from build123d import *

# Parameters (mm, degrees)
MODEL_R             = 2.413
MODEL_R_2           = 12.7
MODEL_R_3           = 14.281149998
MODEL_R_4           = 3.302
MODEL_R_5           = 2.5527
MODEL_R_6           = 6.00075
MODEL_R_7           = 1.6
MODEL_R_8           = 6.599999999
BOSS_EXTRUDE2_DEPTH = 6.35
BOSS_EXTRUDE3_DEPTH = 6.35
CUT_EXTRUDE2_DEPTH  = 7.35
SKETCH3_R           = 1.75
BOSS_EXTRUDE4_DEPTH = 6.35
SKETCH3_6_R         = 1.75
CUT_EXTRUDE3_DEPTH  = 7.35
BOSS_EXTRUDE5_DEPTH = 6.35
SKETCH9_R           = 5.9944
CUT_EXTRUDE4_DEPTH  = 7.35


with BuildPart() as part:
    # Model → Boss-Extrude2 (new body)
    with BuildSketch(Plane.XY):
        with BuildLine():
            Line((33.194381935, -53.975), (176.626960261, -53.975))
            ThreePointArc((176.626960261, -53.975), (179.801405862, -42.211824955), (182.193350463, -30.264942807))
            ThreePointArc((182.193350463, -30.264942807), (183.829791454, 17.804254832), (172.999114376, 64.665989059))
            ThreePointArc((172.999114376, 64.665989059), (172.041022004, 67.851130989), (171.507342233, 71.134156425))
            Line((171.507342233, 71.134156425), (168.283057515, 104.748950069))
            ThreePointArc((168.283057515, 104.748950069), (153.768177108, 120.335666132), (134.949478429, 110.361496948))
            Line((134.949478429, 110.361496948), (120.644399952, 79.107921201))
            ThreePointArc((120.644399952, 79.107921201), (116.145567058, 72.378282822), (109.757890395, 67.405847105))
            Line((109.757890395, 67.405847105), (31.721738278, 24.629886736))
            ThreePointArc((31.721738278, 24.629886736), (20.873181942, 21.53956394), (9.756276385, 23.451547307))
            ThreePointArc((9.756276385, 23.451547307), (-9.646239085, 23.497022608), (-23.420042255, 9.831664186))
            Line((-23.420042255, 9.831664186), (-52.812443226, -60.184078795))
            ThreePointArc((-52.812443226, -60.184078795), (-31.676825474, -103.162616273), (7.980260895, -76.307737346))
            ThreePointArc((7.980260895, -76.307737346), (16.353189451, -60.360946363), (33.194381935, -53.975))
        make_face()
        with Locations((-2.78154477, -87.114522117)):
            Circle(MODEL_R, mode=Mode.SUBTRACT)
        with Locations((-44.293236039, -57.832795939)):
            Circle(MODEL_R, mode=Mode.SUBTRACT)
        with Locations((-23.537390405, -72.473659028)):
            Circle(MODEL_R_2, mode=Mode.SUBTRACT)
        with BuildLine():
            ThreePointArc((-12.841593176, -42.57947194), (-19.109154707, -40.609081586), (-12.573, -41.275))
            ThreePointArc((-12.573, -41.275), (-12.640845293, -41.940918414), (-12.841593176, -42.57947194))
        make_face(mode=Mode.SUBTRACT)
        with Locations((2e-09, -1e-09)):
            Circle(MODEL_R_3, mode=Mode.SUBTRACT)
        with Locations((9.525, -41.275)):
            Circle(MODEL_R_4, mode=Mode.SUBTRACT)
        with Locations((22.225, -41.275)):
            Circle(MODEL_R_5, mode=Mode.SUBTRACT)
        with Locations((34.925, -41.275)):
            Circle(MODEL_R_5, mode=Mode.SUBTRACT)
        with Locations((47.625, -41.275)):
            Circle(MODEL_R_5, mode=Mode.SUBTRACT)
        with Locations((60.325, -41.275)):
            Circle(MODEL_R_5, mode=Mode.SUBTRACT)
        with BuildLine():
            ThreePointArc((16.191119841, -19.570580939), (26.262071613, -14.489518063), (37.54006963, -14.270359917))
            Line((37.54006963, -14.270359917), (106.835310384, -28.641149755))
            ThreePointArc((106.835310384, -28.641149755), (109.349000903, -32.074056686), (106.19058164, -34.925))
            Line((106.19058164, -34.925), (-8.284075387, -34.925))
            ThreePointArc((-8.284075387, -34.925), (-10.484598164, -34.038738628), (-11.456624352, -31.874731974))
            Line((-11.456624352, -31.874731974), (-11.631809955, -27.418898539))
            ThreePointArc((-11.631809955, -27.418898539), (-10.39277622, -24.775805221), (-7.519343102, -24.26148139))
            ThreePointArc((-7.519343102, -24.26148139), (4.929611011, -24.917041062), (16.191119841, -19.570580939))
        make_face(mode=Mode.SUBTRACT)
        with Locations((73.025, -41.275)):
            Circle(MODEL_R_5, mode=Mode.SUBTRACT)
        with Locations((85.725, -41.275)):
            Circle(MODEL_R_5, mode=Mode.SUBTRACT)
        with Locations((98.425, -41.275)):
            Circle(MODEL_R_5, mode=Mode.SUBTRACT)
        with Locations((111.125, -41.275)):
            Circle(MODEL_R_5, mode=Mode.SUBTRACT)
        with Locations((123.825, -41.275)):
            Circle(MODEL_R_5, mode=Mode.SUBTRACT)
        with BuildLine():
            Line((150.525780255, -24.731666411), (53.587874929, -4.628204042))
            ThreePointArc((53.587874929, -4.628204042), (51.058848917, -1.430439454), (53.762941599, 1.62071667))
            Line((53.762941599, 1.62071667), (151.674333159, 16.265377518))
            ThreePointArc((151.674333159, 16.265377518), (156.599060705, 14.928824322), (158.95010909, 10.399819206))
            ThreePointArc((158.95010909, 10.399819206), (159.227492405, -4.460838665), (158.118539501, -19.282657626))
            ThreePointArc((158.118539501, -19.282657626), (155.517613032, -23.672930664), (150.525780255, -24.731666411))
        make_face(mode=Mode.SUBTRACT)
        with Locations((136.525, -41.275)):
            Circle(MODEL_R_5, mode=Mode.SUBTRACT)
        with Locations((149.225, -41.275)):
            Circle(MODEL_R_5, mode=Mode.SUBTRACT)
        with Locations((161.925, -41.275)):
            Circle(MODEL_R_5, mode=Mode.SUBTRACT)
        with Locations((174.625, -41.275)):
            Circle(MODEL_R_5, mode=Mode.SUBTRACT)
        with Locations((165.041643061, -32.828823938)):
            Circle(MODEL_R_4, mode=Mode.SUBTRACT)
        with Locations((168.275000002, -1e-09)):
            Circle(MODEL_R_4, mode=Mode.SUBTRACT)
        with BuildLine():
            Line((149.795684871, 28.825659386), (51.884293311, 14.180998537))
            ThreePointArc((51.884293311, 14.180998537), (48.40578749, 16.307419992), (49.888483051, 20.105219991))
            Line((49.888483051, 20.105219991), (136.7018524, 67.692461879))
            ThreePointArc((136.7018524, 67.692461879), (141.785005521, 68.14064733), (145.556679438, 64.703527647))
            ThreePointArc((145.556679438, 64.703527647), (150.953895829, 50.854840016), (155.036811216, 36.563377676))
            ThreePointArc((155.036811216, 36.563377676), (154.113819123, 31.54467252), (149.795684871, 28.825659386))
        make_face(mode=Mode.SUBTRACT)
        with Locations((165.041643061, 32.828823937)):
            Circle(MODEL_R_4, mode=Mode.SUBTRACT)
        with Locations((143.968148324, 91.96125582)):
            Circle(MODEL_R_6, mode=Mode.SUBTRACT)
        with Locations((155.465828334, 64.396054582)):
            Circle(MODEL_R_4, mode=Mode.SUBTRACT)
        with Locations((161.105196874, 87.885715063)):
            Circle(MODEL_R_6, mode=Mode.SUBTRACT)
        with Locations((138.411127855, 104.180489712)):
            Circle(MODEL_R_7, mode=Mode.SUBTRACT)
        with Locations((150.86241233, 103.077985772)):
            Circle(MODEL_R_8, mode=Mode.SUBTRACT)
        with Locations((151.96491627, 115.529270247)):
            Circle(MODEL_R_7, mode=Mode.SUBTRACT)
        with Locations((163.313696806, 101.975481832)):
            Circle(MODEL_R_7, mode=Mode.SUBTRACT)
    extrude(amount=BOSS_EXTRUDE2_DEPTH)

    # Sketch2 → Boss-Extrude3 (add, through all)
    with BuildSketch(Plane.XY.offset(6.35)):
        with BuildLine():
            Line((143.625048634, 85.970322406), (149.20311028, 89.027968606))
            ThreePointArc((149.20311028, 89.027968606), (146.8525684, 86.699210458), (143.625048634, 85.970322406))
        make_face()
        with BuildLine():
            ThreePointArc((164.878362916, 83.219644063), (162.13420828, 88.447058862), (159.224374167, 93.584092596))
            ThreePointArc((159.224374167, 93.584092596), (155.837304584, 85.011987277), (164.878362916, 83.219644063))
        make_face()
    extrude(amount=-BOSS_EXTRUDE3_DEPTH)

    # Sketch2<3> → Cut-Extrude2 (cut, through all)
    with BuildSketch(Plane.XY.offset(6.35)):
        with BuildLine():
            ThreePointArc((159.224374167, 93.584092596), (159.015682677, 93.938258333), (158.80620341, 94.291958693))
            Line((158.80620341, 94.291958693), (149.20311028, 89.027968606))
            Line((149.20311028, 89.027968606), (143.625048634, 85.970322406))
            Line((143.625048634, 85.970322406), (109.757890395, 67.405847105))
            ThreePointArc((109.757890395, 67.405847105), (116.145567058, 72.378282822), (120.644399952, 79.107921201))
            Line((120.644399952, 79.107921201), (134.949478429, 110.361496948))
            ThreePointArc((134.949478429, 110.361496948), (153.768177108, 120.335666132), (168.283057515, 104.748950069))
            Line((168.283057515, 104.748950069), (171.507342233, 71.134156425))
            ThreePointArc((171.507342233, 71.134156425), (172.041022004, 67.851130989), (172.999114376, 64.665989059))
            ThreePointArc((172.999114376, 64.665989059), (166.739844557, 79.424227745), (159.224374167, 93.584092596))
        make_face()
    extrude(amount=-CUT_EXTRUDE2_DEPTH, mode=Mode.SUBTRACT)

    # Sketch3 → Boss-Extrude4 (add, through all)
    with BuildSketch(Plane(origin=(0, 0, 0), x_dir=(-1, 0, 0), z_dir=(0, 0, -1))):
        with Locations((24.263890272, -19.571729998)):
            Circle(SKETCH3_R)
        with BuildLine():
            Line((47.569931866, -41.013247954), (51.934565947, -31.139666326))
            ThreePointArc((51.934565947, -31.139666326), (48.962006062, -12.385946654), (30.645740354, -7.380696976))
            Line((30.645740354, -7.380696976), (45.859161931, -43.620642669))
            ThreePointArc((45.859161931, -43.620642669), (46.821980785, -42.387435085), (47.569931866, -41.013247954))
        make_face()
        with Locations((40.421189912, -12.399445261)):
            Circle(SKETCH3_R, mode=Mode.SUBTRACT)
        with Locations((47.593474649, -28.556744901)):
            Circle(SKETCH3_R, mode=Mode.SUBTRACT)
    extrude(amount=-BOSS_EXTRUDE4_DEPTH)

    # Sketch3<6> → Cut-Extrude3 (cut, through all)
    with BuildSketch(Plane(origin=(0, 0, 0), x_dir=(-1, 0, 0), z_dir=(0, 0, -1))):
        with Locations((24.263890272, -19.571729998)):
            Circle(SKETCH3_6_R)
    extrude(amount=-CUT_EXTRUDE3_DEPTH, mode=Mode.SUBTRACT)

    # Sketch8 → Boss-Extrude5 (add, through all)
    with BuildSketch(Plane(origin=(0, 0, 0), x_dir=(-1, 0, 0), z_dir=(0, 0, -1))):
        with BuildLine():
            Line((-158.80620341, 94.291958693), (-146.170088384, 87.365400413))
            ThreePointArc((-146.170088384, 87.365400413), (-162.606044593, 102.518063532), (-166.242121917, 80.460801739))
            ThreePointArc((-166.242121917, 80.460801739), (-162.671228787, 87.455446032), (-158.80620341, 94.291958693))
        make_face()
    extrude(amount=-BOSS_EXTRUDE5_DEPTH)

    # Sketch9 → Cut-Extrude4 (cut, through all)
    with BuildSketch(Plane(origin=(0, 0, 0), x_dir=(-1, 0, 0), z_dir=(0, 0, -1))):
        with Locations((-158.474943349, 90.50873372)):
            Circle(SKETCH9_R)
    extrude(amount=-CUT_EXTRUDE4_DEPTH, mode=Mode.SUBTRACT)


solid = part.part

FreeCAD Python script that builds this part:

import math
import FreeCAD as App
import Part
import Sketcher

V = App.Vector
Q = App.Units.Quantity

doc = App.newDocument("Part")
body = doc.addObject("PartDesign::Body", "Body")

# Sketch on XY plane
sketch1 = body.newObject("Sketcher::SketchObject", "Sketch")
sketch1.AttachmentSupport = (doc.getObject("XY_Plane"), [""])
sketch1.MapMode = "FlatFace"
sketch1.addGeometry(Part.LineSegment(V(33.2, -54, 0), V(176.6, -54, 0)), False)
sketch1.addGeometry(Part.ArcOfCircle(Part.Circle(V(0, 0, 0), V(0, 0, 1), 184.7), math.radians(-16.99), math.radians(-9.43)), False)
sketch1.addGeometry(Part.ArcOfCircle(Part.Circle(V(0, 0, 0), V(0, 0, 1), 184.7), math.radians(-9), math.radians(20)), False)
sketch1.addGeometry(Part.ArcOfCircle(Part.Circle(V(196.8, 73.6, 0), V(0, 0, 1), 25.4), math.radians(-174.52), math.radians(-159.5)), False)
sketch1.addGeometry(Part.LineSegment(V(171.5, 71.1, 0), V(168.3, 104.7, 0)), False)
sketch1.addGeometry(Part.ArcOfCircle(Part.Circle(V(150.9, 103.1, 0), V(0, 0, 1), 17.5), math.radians(5), math.radians(155)), False)
sketch1.addGeometry(Part.LineSegment(V(134.9, 110.4, 0), V(120.6, 79.1, 0)), False)
sketch1.addGeometry(Part.ArcOfCircle(Part.Circle(V(97.5, 89.7, 0), V(0, 0, 1), 25.4), math.radians(-61), math.radians(-25)), False)
sketch1.addGeometry(Part.LineSegment(V(109.8, 67.4, 0), V(31.7, 24.6, 0)), False)
sketch1.addGeometry(Part.ArcOfCircle(Part.Circle(V(19.5, 46.9, 0), V(0, 0, 1), 25.4), math.radians(-113), math.radians(-61)), False)
sketch1.addGeometry(Part.ArcOfCircle(Part.Circle(V(0, 0, 0), V(0, 0, 1), 25.4), math.radians(67), math.radians(157)), False)
sketch1.addGeometry(Part.LineSegment(V(-23.4, 9.8, 0), V(-52.8, -60.2, 0)), False)
sketch1.addGeometry(Part.ArcOfCircle(Part.Circle(V(-23.5, -72.5, 0), V(0, 0, 1), 31.8), math.radians(157), math.radians(353)), False)
sketch1.addGeometry(Part.ArcOfCircle(Part.Circle(V(33.2, -79.4, 0), V(0, 0, 1), 25.4), math.radians(90), math.radians(173)), False)
sketch1.addGeometry(Part.Circle(V(-23.5, -72.5, 0), V(0, 0, 1), 12.7), False)
sketch1.addGeometry(Part.Circle(V(-2.8, -87.1, 0), V(0, 0, 1), 2.4), False)
sketch1.addGeometry(Part.Circle(V(-44.3, -57.8, 0), V(0, 0, 1), 2.4), False)
sketch1.addGeometry(Part.ArcOfCircle(Part.Circle(V(-15.9, -41.3, 0), V(0, 0, 1), 3.3), math.radians(-23), math.radians(0)), False)
sketch1.addGeometry(Part.ArcOfCircle(Part.Circle(V(-15.9, -41.3, 0), V(0, 0, 1), 3.3), math.radians(0), math.radians(337)), False)
sketch1.addGeometry(Part.Circle(V(9.5, -41.3, 0), V(0, 0, 1), 3.3), False)
sketch1.addGeometry(Part.Circle(V(22.2, -41.3, 0), V(0, 0, 1), 2.6), False)
sketch1.addGeometry(Part.Circle(V(34.9, -41.3, 0), V(0, 0, 1), 2.6), False)
sketch1.addGeometry(Part.Circle(V(47.6, -41.3, 0), V(0, 0, 1), 2.6), False)
sketch1.addGeometry(Part.Circle(V(60.3, -41.3, 0), V(0, 0, 1), 2.6), False)
sketch1.addGeometry(Part.Circle(V(0, 0, 0), V(0, 0, 1), 14.3), False)
sketch1.addGeometry(Part.ArcOfCircle(Part.Circle(V(0, 0, 0), V(0, 0, 1), 25.4), math.radians(-107), math.radians(-50)), False)
sketch1.addGeometry(Part.ArcOfCircle(Part.Circle(V(32.4, -39.1, 0), V(0, 0, 1), 25.4), math.radians(78), math.radians(130)), False)
sketch1.addGeometry(Part.LineSegment(V(37.5, -14.3, 0), V(106.8, -28.6, 0)), False)
sketch1.addGeometry(Part.ArcOfCircle(Part.Circle(V(106.2, -31.8, 0), V(0, 0, 1), 3.2), math.radians(-90), math.radians(78)), False)
sketch1.addGeometry(Part.LineSegment(V(106.2, -34.9, 0), V(-8.3, -34.9, 0)), False)
sketch1.addGeometry(Part.ArcOfCircle(Part.Circle(V(-8.3, -31.8, 0), V(0, 0, 1), 3.2), math.radians(-178), math.radians(-90)), False)
sketch1.addGeometry(Part.LineSegment(V(-11.5, -31.9, 0), V(-11.6, -27.4, 0)), False)
sketch1.addGeometry(Part.ArcOfCircle(Part.Circle(V(-8.5, -27.3, 0), V(0, 0, 1), 3.2), math.radians(73), math.radians(182)), False)
sketch1.addGeometry(Part.Circle(V(73, -41.3, 0), V(0, 0, 1), 2.6), False)
sketch1.addGeometry(Part.Circle(V(85.7, -41.3, 0), V(0, 0, 1), 2.6), False)
sketch1.addGeometry(Part.Circle(V(98.4, -41.3, 0), V(0, 0, 1), 2.6), False)
sketch1.addGeometry(Part.Circle(V(111.1, -41.3, 0), V(0, 0, 1), 2.6), False)
sketch1.addGeometry(Part.Circle(V(123.8, -41.3, 0), V(0, 0, 1), 2.6), False)
sketch1.addGeometry(Part.Circle(V(136.5, -41.3, 0), V(0, 0, 1), 2.6), False)
sketch1.addGeometry(Part.Circle(V(149.2, -41.3, 0), V(0, 0, 1), 2.6), False)
sketch1.addGeometry(Part.Circle(V(161.9, -41.3, 0), V(0, 0, 1), 2.6), False)
sketch1.addGeometry(Part.Circle(V(174.6, -41.3, 0), V(0, 0, 1), 2.6), False)
sketch1.addGeometry(Part.ArcOfCircle(Part.Circle(V(151.8, -18.5, 0), V(0, 0, 1), 6.3), math.radians(-102), math.radians(-7)), False)
sketch1.addGeometry(Part.LineSegment(V(150.5, -24.7, 0), V(53.6, -4.6, 0)), False)
sketch1.addGeometry(Part.ArcOfCircle(Part.Circle(V(54.2, -1.5, 0), V(0, 0, 1), 3.2), math.radians(99), math.radians(258)), False)
sketch1.addGeometry(Part.LineSegment(V(53.8, 1.6, 0), V(151.7, 16.3, 0)), False)
sketch1.addGeometry(Part.ArcOfCircle(Part.Circle(V(152.6, 10, 0), V(0, 0, 1), 6.3), math.radians(4), math.radians(99)), False)
sketch1.addGeometry(Part.ArcOfCircle(Part.Circle(V(0, 0, 0), V(0, 0, 1), 159.3), math.radians(-6.95), math.radians(3.74)), False)
sketch1.addGeometry(Part.Circle(V(165, -32.8, 0), V(0, 0, 1), 3.3), False)
sketch1.addGeometry(Part.Circle(V(168.3, 0, 0), V(0, 0, 1), 3.3), False)
sketch1.addGeometry(Part.ArcOfCircle(Part.Circle(V(148.9, 35.1, 0), V(0, 0, 1), 6.3), math.radians(-81), math.radians(13)), False)
sketch1.addGeometry(Part.LineSegment(V(149.8, 28.8, 0), V(51.9, 14.2, 0)), False)
sketch1.addGeometry(Part.ArcOfCircle(Part.Circle(V(51.4, 17.3, 0), V(0, 0, 1), 3.2), math.radians(119), math.radians(279)), False)
sketch1.addGeometry(Part.LineSegment(V(49.9, 20.1, 0), V(136.7, 67.7, 0)), False)
sketch1.addGeometry(Part.ArcOfCircle(Part.Circle(V(139.8, 62.1, 0), V(0, 0, 1), 6.3), math.radians(24), math.radians(119)), False)
sketch1.addGeometry(Part.ArcOfCircle(Part.Circle(V(0, 0, 0), V(0, 0, 1), 159.3), math.radians(13.27), math.radians(23.97)), False)
sketch1.addGeometry(Part.Circle(V(165, 32.8, 0), V(0, 0, 1), 3.3), False)
sketch1.addGeometry(Part.Circle(V(155.5, 64.4, 0), V(0, 0, 1), 3.3), False)
sketch1.addGeometry(Part.Circle(V(161.1, 87.9, 0), V(0, 0, 1), 6), False)
sketch1.addGeometry(Part.Circle(V(144, 92, 0), V(0, 0, 1), 6), False)
sketch1.addGeometry(Part.Circle(V(138.4, 104.2, 0), V(0, 0, 1), 1.6), False)
sketch1.addGeometry(Part.Circle(V(150.9, 103.1, 0), V(0, 0, 1), 6.6), False)
sketch1.addGeometry(Part.Circle(V(163.3, 102, 0), V(0, 0, 1), 1.6), False)
sketch1.addGeometry(Part.Circle(V(152, 115.5, 0), V(0, 0, 1), 1.6), False)
sketch1.addConstraint(Sketcher.Constraint("Coincident", 0, 2, 1, 1))
sketch1.addConstraint(Sketcher.Constraint("Tangent", 1, 2, 2, 1))
sketch1.addConstraint(Sketcher.Constraint("Tangent", 2, 2, 3, 2))
sketch1.addConstraint(Sketcher.Constraint("Tangent", 3, 1, 4, 1))
sketch1.addConstraint(Sketcher.Constraint("Tangent", 4, 2, 5, 1))
sketch1.addConstraint(Sketcher.Constraint("Tangent", 5, 2, 6, 1))
sketch1.addConstraint(Sketcher.Constraint("Tangent", 6, 2, 7, 2))
sketch1.addConstraint(Sketcher.Constraint("Tangent", 7, 1, 8, 1))
sketch1.addConstraint(Sketcher.Constraint("Tangent", 8, 2, 9, 2))
sketch1.addConstraint(Sketcher.Constraint("Tangent", 9, 1, 10, 1))
sketch1.addConstraint(Sketcher.Constraint("Tangent", 10, 2, 11, 1))
sketch1.addConstraint(Sketcher.Constraint("Tangent", 11, 2, 12, 1))
sketch1.addConstraint(Sketcher.Constraint("Tangent", 12, 2, 13, 2))
sketch1.addConstraint(Sketcher.Constraint("Tangent", 13, 1, 0, 1))
sketch1.addConstraint(Sketcher.Constraint("Tangent", 17, 1, 18, 2))
sketch1.addConstraint(Sketcher.Constraint("Coincident", 18, 1, 17, 2))
sketch1.addConstraint(Sketcher.Constraint("Tangent", 25, 2, 26, 2))
sketch1.addConstraint(Sketcher.Constraint("Tangent", 26, 1, 27, 1))
sketch1.addConstraint(Sketcher.Constraint("Tangent", 27, 2, 28, 2))
sketch1.addConstraint(Sketcher.Constraint("Tangent", 28, 1, 29, 1))
sketch1.addConstraint(Sketcher.Constraint("Tangent", 29, 2, 30, 2))
sketch1.addConstraint(Sketcher.Constraint("Tangent", 30, 1, 31, 1))
sketch1.addConstraint(Sketcher.Constraint("Tangent", 31, 2, 32, 2))
sketch1.addConstraint(Sketcher.Constraint("Tangent", 32, 1, 25, 1))
sketch1.addConstraint(Sketcher.Constraint("Tangent", 42, 1, 43, 1))
sketch1.addConstraint(Sketcher.Constraint("Tangent", 43, 2, 44, 2))
sketch1.addConstraint(Sketcher.Constraint("Tangent", 44, 1, 45, 1))
sketch1.addConstraint(Sketcher.Constraint("Tangent", 45, 2, 46, 2))
sketch1.addConstraint(Sketcher.Constraint("Tangent", 46, 1, 47, 2))
sketch1.addConstraint(Sketcher.Constraint("Tangent", 47, 1, 42, 2))
sketch1.addConstraint(Sketcher.Constraint("Tangent", 50, 1, 51, 1))
sketch1.addConstraint(Sketcher.Constraint("Tangent", 51, 2, 52, 2))
sketch1.addConstraint(Sketcher.Constraint("Tangent", 52, 1, 53, 1))
sketch1.addConstraint(Sketcher.Constraint("Tangent", 53, 2, 54, 2))
sketch1.addConstraint(Sketcher.Constraint("Tangent", 54, 1, 55, 2))
sketch1.addConstraint(Sketcher.Constraint("Tangent", 55, 1, 50, 2))
sketch1.addConstraint(Sketcher.Constraint("Horizontal", 0))
sketch1.addConstraint(Sketcher.Constraint("Horizontal", 29))
sketch1.addConstraint(Sketcher.Constraint("Coincident", 1, 3, -1, 1))
sketch1.addConstraint(Sketcher.Constraint("Coincident", 10, 3, -1, 1))
sketch1.addConstraint(Sketcher.Constraint("Coincident", 24, 3, -1, 1))
sketch1.addConstraint(Sketcher.Constraint("Coincident", 25, 3, -1, 1))
sketch1.addConstraint(Sketcher.Constraint("Coincident", 47, 3, -1, 1))
sketch1.addConstraint(Sketcher.Constraint("Coincident", 55, 3, -1, 1))
sketch1.addConstraint(Sketcher.Constraint("Coincident", 14, 3, 12, 3))
sketch1.addConstraint(Sketcher.Constraint("Coincident", 61, 3, 5, 3))
sketch1.addConstraint(Sketcher.Constraint("Equal", 1, 2))
sketch1.addConstraint(Sketcher.Constraint("Equal", 3, 7))
sketch1.addConstraint(Sketcher.Constraint("Equal", 7, 9))
sketch1.addConstraint(Sketcher.Constraint("Equal", 9, 10))
sketch1.addConstraint(Sketcher.Constraint("Equal", 10, 13))
sketch1.addConstraint(Sketcher.Constraint("Equal", 15, 16))
sketch1.addConstraint(Sketcher.Constraint("Equal", 18, 19))
sketch1.addConstraint(Sketcher.Constraint("Equal", 20, 21))
sketch1.addConstraint(Sketcher.Constraint("Equal", 21, 22))
sketch1.addConstraint(Sketcher.Constraint("Equal", 22, 23))
sketch1.addConstraint(Sketcher.Constraint("Equal", 13, 25))
sketch1.addConstraint(Sketcher.Constraint("Equal", 25, 26))
sketch1.addConstraint(Sketcher.Constraint("Equal", 28, 30))
sketch1.addConstraint(Sketcher.Constraint("Equal", 30, 32))
sketch1.addConstraint(Sketcher.Constraint("Equal", 23, 33))
sketch1.addConstraint(Sketcher.Constraint("Equal", 33, 34))
sketch1.addConstraint(Sketcher.Constraint("Equal", 34, 35))
sketch1.addConstraint(Sketcher.Constraint("Equal", 35, 36))
sketch1.addConstraint(Sketcher.Constraint("Equal", 36, 37))
sketch1.addConstraint(Sketcher.Constraint("Equal", 37, 38))
sketch1.addConstraint(Sketcher.Constraint("Equal", 38, 39))
sketch1.addConstraint(Sketcher.Constraint("Equal", 39, 40))
sketch1.addConstraint(Sketcher.Constraint("Equal", 40, 41))
sketch1.addConstraint(Sketcher.Constraint("Equal", 32, 44))
sketch1.addConstraint(Sketcher.Constraint("Equal", 42, 46))
sketch1.addConstraint(Sketcher.Constraint("Equal", 19, 48))
sketch1.addConstraint(Sketcher.Constraint("Equal", 48, 49))
sketch1.addConstraint(Sketcher.Constraint("Equal", 46, 50))
sketch1.addConstraint(Sketcher.Constraint("Equal", 44, 52))
sketch1.addConstraint(Sketcher.Constraint("Equal", 50, 54))
sketch1.addConstraint(Sketcher.Constraint("Equal", 47, 55))
sketch1.addConstraint(Sketcher.Constraint("Equal", 49, 56))
sketch1.addConstraint(Sketcher.Constraint("Equal", 56, 57))
sketch1.addConstraint(Sketcher.Constraint("Equal", 58, 59))
sketch1.addConstraint(Sketcher.Constraint("Equal", 60, 62))
sketch1.addConstraint(Sketcher.Constraint("Equal", 62, 63))
sketch1.addConstraint(Sketcher.Constraint("Symmetric", 48, 3, 56, 3, -1))
sketch1.addConstraint(Sketcher.Constraint("PointOnObject", 49, 3, -1))
sketch1.addConstraint(Sketcher.Constraint("Parallel", 27, 43))
sketch1.addConstraint(Sketcher.Constraint("Parallel", 45, 51))
sketch1.addConstraint(Sketcher.Constraint("Parallel", 8, 53))
sketch1.addConstraint(Sketcher.Constraint("Horizontal", 18, 3, 19, 3))
sketch1.addConstraint(Sketcher.Constraint("Horizontal", 19, 3, 20, 3))
sketch1.addConstraint(Sketcher.Constraint("Horizontal", 20, 3, 21, 3))
sketch1.addConstraint(Sketcher.Constraint("Horizontal", 21, 3, 22, 3))
sketch1.addConstraint(Sketcher.Constraint("Horizontal", 22, 3, 23, 3))
sketch1.addConstraint(Sketcher.Constraint("Horizontal", 23, 3, 33, 3))
sketch1.addConstraint(Sketcher.Constraint("Horizontal", 33, 3, 34, 3))
sketch1.addConstraint(Sketcher.Constraint("Horizontal", 34, 3, 35, 3))
sketch1.addConstraint(Sketcher.Constraint("Horizontal", 35, 3, 36, 3))
sketch1.addConstraint(Sketcher.Constraint("Horizontal", 36, 3, 37, 3))
sketch1.addConstraint(Sketcher.Constraint("Horizontal", 37, 3, 38, 3))
sketch1.addConstraint(Sketcher.Constraint("Horizontal", 38, 3, 39, 3))
sketch1.addConstraint(Sketcher.Constraint("Horizontal", 39, 3, 40, 3))
sketch1.addConstraint(Sketcher.Constraint("Horizontal", 40, 3, 41, 3))
sketch1.addConstraint(Sketcher.Constraint("Horizontal", 41, 3, 18, 1))
sketch1.addConstraint(Sketcher.Constraint("Equal", 43, 45))
sketch1.addConstraint(Sketcher.Constraint("Equal", 45, 51))
sketch1.addConstraint(Sketcher.Constraint("Equal", 51, 53))
sketch1.addConstraint(Sketcher.Constraint("Diameter", 14, Q("1 in")))
sketch1.addConstraint(Sketcher.Constraint("Radius", 3, Q("1 in")))
sketch1.addConstraint(Sketcher.Constraint("Diameter", 15, Q("0.19 in")))
sketch1.addConstraint(Sketcher.Constraint("Diameter", 19, Q("0.26 in")))
sketch1.addConstraint(Sketcher.Constraint("Radius", 12, Q("1.25 in")))
sketch1.addConstraint(Sketcher.Constraint("Radius", 42, Q("0.25 in")))
sketch1.addConstraint(Sketcher.Constraint("Diameter", 20, Q("0.201 in")))
sketch1.addConstraint(Sketcher.Constraint("Radius", 5, Q("0.689 in")))
sketch1.addConstraint(Sketcher.Constraint("Radius", 28, Q("0.125 in")))
sketch1.addConstraint(Sketcher.Constraint("Diameter", 24, Q("1.1245 in")))
sketch1.addConstraint(Sketcher.Constraint("Diameter", 58, Q("0.4725 in")))
sketch1.addConstraint(Sketcher.Constraint("Diameter", 60, Q("3.2 mm")))
sketch1.addConstraint(Sketcher.Constraint("Diameter", 61, Q("13.2 mm")))
sketch1.addConstraint(Sketcher.Constraint("DistanceY", 28, 3, -1, 1, Q("1.25 in")))
sketch1.addConstraint(Sketcher.Constraint("DistanceY", 13, 3, -1, 1, Q("3.125 in")))
sketch1.addConstraint(Sketcher.Constraint("DistanceX", 17, 3, -1, 1, Q("0.625 in")))
sketch1.addConstraint(Sketcher.Constraint("DistanceY", 17, 3, -1, 1, Q("1.625 in")))
sketch1.addConstraint(Sketcher.Constraint("DistanceX", -1, 1, 19, 3, Q("0.375 in")))
sketch1.addConstraint(Sketcher.Constraint("DistanceX", -1, 1, 20, 3, Q("0.875 in")))
sketch1.addConstraint(Sketcher.Constraint("DistanceX", -1, 1, 21, 3, Q("1.375 in")))
sketch1.addConstraint(Sketcher.Constraint("DistanceX", -1, 1, 22, 3, Q("1.875 in")))
sketch1.addConstraint(Sketcher.Constraint("DistanceX", -1, 1, 23, 3, Q("2.375 in")))
sketch1.addConstraint(Sketcher.Constraint("DistanceX", -1, 1, 33, 3, Q("2.875 in")))
sketch1.addConstraint(Sketcher.Constraint("DistanceX", -1, 1, 34, 3, Q("3.375 in")))
sketch1.addConstraint(Sketcher.Constraint("DistanceX", -1, 1, 35, 3, Q("3.875 in")))
sketch1.addConstraint(Sketcher.Constraint("DistanceX", -1, 1, 36, 3, Q("4.375 in")))
sketch1.addConstraint(Sketcher.Constraint("DistanceX", -1, 1, 37, 3, Q("4.875 in")))
sketch1.addConstraint(Sketcher.Constraint("DistanceX", -1, 1, 38, 3, Q("5.375 in")))
sketch1.addConstraint(Sketcher.Constraint("DistanceX", -1, 1, 39, 3, Q("5.875 in")))
sketch1.addConstraint(Sketcher.Constraint("DistanceX", -1, 1, 40, 3, Q("6.375 in")))
sketch1.addConstraint(Sketcher.Constraint("DistanceX", -1, 1, 41, 3, Q("6.875 in")))
sketch1.addConstraint(Sketcher.Constraint("DistanceX", -1, 1, 49, 3, Q("6.625 in")))
sketch1.addConstraint(Sketcher.Constraint("DistanceX", -1, 1, 7, 3, Q("3.8405002 in")))
sketch1.addConstraint(Sketcher.Constraint("Radius", 1, Q("184.689967 mm")))
sketch1.addConstraint(Sketcher.Constraint("Radius", 47, Q("159.289966 mm")))
sketch1.addConstraint(Sketcher.Constraint("DistanceX", 0, 1, 0, 2, Q("143.432578 mm")))
sketch1.addConstraint(Sketcher.Constraint("DistanceY", -1, 1, 50, 3, Q("35.1058 mm")))
sketch1.addConstraint(Sketcher.Constraint("DistanceX", -1, 1, 6, 2, Q("120.6444 mm")))
sketch1.addConstraint(Sketcher.Constraint("DistanceY", 31, 2, -1, 1, Q("27.418899 mm")))
sketch1.addConstraint(Sketcher.Constraint("DistanceY", -1, 1, 51, 2, Q("14.180999 mm")))
sketch1.addConstraint(Sketcher.Constraint("Distance", 6, Q("34.371809 mm")))
sketch1.addConstraint(Sketcher.Constraint("Distance", 43, Q("99.000539 mm")))
sketch1.addConstraint(Sketcher.Constraint("DistanceX", 29, 2, 29, 1, Q("114.474657 mm")))
sketch1.addConstraint(Sketcher.Constraint("DistanceY", -1, 1, 3, 3, Q("73.559359 mm")))
sketch1.addConstraint(Sketcher.Constraint("DistanceX", 12, 3, -1, 1, Q("23.53739 mm")))
sketch1.addConstraint(Sketcher.Constraint("DistanceX", -1, 1, 26, 3, Q("32.38224 mm")))
sketch1.addConstraint(Sketcher.Constraint("DistanceX", -1, 1, 28, 3, Q("106.190582 mm")))
sketch1.addConstraint(Sketcher.Constraint("DistanceX", -1, 1, 57, 3, Q("155.465828 mm")))
sketch1.addConstraint(Sketcher.Constraint("DistanceX", -1, 1, 59, 3, Q("143.968148 mm")))
sketch1.addConstraint(Sketcher.Constraint("DistanceY", -1, 1, 60, 3, Q("104.18049 mm")))
sketch1.addConstraint(Sketcher.Constraint("DistanceY", -1, 1, 62, 3, Q("101.975482 mm")))
sketch1.addConstraint(Sketcher.Constraint("DistanceY", -1, 1, 63, 3, Q("115.52927 mm")))
sketch1.addConstraint(Sketcher.Constraint("DistanceX", -1, 1, 1, 2, Q("182.19335 mm")))
sketch1.addConstraint(Sketcher.Constraint("DistanceY", -1, 1, 4, 2, Q("104.74895 mm")))
sketch1.addConstraint(Sketcher.Constraint("DistanceY", 17, 1, -1, 1, Q("42.579472 mm")))
sketch1.addConstraint(Sketcher.Constraint("DistanceX", 15, 3, -1, 1, Q("2.781545 mm")))
sketch1.addConstraint(Sketcher.Constraint("DistanceY", 15, 3, -1, 1, Q("87.114522 mm")))
sketch1.addConstraint(Sketcher.Constraint("DistanceX", 16, 3, -1, 1, Q("44.293236 mm")))
sketch1.addConstraint(Sketcher.Constraint("DistanceY", 16, 3, -1, 1, Q("57.832796 mm")))
sketch1.addConstraint(Sketcher.Constraint("DistanceX", -1, 1, 48, 3, Q("165.041643 mm")))
sketch1.addConstraint(Sketcher.Constraint("DistanceY", 48, 3, -1, 1, Q("32.828824 mm")))
sketch1.addConstraint(Sketcher.Constraint("DistanceY", -1, 1, 57, 3, Q("64.396055 mm")))
sketch1.addConstraint(Sketcher.Constraint("DistanceX", -1, 1, 58, 3, Q("161.105197 mm")))
sketch1.addConstraint(Sketcher.Constraint("DistanceY", -1, 1, 58, 3, Q("87.885715 mm")))
sketch1.addConstraint(Sketcher.Constraint("DistanceY", -1, 1, 59, 3, Q("91.961256 mm")))
sketch1.addConstraint(Sketcher.Constraint("DistanceX", -1, 1, 60, 3, Q("138.411128 mm")))
sketch1.addConstraint(Sketcher.Constraint("DistanceX", -1, 1, 62, 3, Q("163.313697 mm")))
sketch1.addConstraint(Sketcher.Constraint("DistanceX", -1, 1, 63, 3, Q("151.964916 mm")))
pad1 = body.newObject("PartDesign::Pad", "Pad")
pad1.Profile = sketch1
pad1.Length = Q("0.25 in")

# Sketch on XY plane
sketch2 = body.newObject("Sketcher::SketchObject", "Sketch001")
sketch2.AttachmentSupport = (doc.getObject("XY_Plane"), [""])
sketch2.MapMode = "FlatFace"
sketch2.AttachmentOffset = App.Placement(V(0, 0, 0.25 * 25.4), App.Rotation())
sketch2.addGeometry(Part.LineSegment(V(149, 89, 0), V(144, 86, 0)), False)
sketch2.addGeometry(Part.ArcOfCircle(Part.Circle(V(144, 92, 0), V(0, 0, 1), 6), math.radians(-93), math.radians(-29)), False)
sketch2.addGeometry(Part.ArcOfCircle(Part.Circle(V(0, 0, 0), V(0, 0, 1), 185), math.radians(26.78), math.radians(30.44)), False)
sketch2.addGeometry(Part.ArcOfCircle(Part.Circle(V(161, 88, 0), V(0, 0, 1), 6), math.radians(108), math.radians(309)), False)
sketch2.addConstraint(Sketcher.Constraint("Coincident", 0, 1, 1, 2))
sketch2.addConstraint(Sketcher.Constraint("Coincident", 1, 1, 0, 2))
sketch2.addConstraint(Sketcher.Constraint("Coincident", 2, 1, 3, 2))
sketch2.addConstraint(Sketcher.Constraint("Coincident", 3, 1, 2, 2))
sketch2.addConstraint(Sketcher.Constraint("Coincident", 2, 3, -1, 1))
sketch2.addConstraint(Sketcher.Constraint("Equal", 1, 3))
sketch2.addConstraint(Sketcher.Constraint("Radius", 1, Q("6.00075 mm")))
sketch2.addConstraint(Sketcher.Constraint("Radius", 2, Q("184.689966 mm")))
sketch2.addConstraint(Sketcher.Constraint("DistanceX", 1, 1, 1, 3, Q("0.3431 mm")))
sketch2.addConstraint(Sketcher.Constraint("Distance", 0, Q("6.36113 mm")))
sketch2.addConstraint(Sketcher.Constraint("DistanceX", -1, 1, 1, 3, Q("143.968148 mm")))
sketch2.addConstraint(Sketcher.Constraint("DistanceY", -1, 1, 0, 1, Q("89.027969 mm")))
sketch2.addConstraint(Sketcher.Constraint("DistanceX", 1, 3, 3, 3, Q("17.137049 mm")))
sketch2.addConstraint(Sketcher.Constraint("DistanceY", 3, 3, 1, 3, Q("4.075541 mm")))
pad2 = body.newObject("PartDesign::Pad", "Pad001")
pad2.Profile = sketch2
pad2.Length = Q("0.25 in")
pad2.Reversed = True

# Sketch on XY plane
sketch3 = body.newObject("Sketcher::SketchObject", "Sketch002")
sketch3.AttachmentSupport = (doc.getObject("XY_Plane"), [""])
sketch3.MapMode = "FlatFace"
sketch3.AttachmentOffset = App.Placement(V(0, 0, 0.25 * 25.4), App.Rotation())
sketch3.addGeometry(Part.ArcOfCircle(Part.Circle(V(0, 0, 0), V(0, 0, 1), 184.7), math.radians(30.44), math.radians(30.7)), False)
sketch3.addGeometry(Part.ArcOfCircle(Part.Circle(V(0, 0, 0), V(0, 0, 1), 184.7), math.radians(20.5), math.radians(30.44)), False)
sketch3.addGeometry(Part.ArcOfCircle(Part.Circle(V(196.8, 73.6, 0), V(0, 0, 1), 25.4), math.radians(-174.52), math.radians(-159.5)), False)
sketch3.addGeometry(Part.LineSegment(V(171.5, 71.1, 0), V(168.3, 104.7, 0)), False)
sketch3.addGeometry(Part.ArcOfCircle(Part.Circle(V(150.9, 103.1, 0), V(0, 0, 1), 17.5), math.radians(5), math.radians(155)), False)
sketch3.addGeometry(Part.LineSegment(V(134.9, 110.4, 0), V(120.6, 79.1, 0)), False)
sketch3.addGeometry(Part.ArcOfCircle(Part.Circle(V(97.5, 89.7, 0), V(0, 0, 1), 25.4), math.radians(-61), math.radians(-25)), False)
sketch3.addGeometry(Part.LineSegment(V(109.8, 67.4, 0), V(143.6, 86, 0)), False)
sketch3.addGeometry(Part.LineSegment(V(143.6, 86, 0), V(149.2, 89, 0)), False)
sketch3.addGeometry(Part.LineSegment(V(149.2, 89, 0), V(158.8, 94.3, 0)), False)
sketch3.addConstraint(Sketcher.Constraint("Tangent", 0, 1, 1, 2))
sketch3.addConstraint(Sketcher.Constraint("Tangent", 1, 1, 2, 2))
sketch3.addConstraint(Sketcher.Constraint("Tangent", 2, 1, 3, 1))
sketch3.addConstraint(Sketcher.Constraint("Tangent", 3, 2, 4, 1))
sketch3.addConstraint(Sketcher.Constraint("Tangent", 4, 2, 5, 1))
sketch3.addConstraint(Sketcher.Constraint("Tangent", 5, 2, 6, 2))
sketch3.addConstraint(Sketcher.Constraint("Tangent", 6, 1, 7, 1))
sketch3.addConstraint(Sketcher.Constraint("Coincident", 7, 2, 8, 1))
sketch3.addConstraint(Sketcher.Constraint("Coincident", 8, 2, 9, 1))
sketch3.addConstraint(Sketcher.Constraint("Coincident", 9, 2, 0, 2))
sketch3.addConstraint(Sketcher.Constraint("Coincident", 1, 3, -1, 1))
sketch3.addConstraint(Sketcher.Constraint("Equal", 2, 6))
sketch3.addConstraint(Sketcher.Constraint("Parallel", 7, 8))
sketch3.addConstraint(Sketcher.Constraint("Parallel", 8, 9))
sketch3.addConstraint(Sketcher.Constraint("Radius", 2, Q("1 in")))
sketch3.addConstraint(Sketcher.Constraint("Radius", 4, Q("0.689 in")))
sketch3.addConstraint(Sketcher.Constraint("DistanceX", -1, 1, 6, 3, Q("3.8405002 in")))
sketch3.addConstraint(Sketcher.Constraint("Radius", 0, Q("184.689863 mm")))
sketch3.addConstraint(Sketcher.Constraint("Radius", 1, Q("184.689967 mm")))
sketch3.addConstraint(Sketcher.Constraint("DistanceX", -1, 1, 5, 2, Q("120.6444 mm")))
sketch3.addConstraint(Sketcher.Constraint("DistanceY", 2, 1, 6, 3, Q("18.544899 mm")))
sketch3.addConstraint(Sketcher.Constraint("DistanceY", 5, 2, 7, 2, Q("6.862401 mm")))
sketch3.addConstraint(Sketcher.Constraint("Distance", 5, Q("34.371809 mm")))
sketch3.addConstraint(Sketcher.Constraint("Distance", 7, Q("38.62155 mm")))
sketch3.addConstraint(Sketcher.Constraint("Distance", 8, Q("6.36113 mm")))
sketch3.addConstraint(Sketcher.Constraint("Distance", 9, Q("10.951209 mm")))
sketch3.addConstraint(Sketcher.Constraint("DistanceX", 4, 3, 0, 1, Q("8.361962 mm")))
pocket1 = body.newObject("PartDesign::Pocket", "Pocket")
pocket1.Profile = sketch3
pocket1.Type = "ThroughAll"

# Sketch on XY plane
sketch4 = body.newObject("Sketcher::SketchObject", "Sketch003")
sketch4.AttachmentSupport = (doc.getObject("XY_Plane"), [""])
sketch4.MapMode = "FlatFace"
sketch4.addGeometry(Part.Circle(V(-24.3, -19.6, 0), V(0, 0, 1), 1.8), False)
sketch4.addGeometry(Part.LineSegment(V(-47.6, -41, 0), V(-51.9, -31.1, 0)), False)
sketch4.addGeometry(Part.ArcOfCircle(Part.Circle(V(-35.9, -24.1, 0), V(0, 0, 1), 17.5), math.radians(72), math.radians(204)), False)
sketch4.addGeometry(Part.LineSegment(V(-30.6, -7.4, 0), V(-45.9, -43.6, 0)), False)
sketch4.addGeometry(Part.ArcOfCircle(Part.Circle(V(-38.9, -37.2, 0), V(0, 0, 1), 9.5), math.radians(-156.15), math.radians(-137.31)), False)
sketch4.addGeometry(Part.Circle(V(-47.6, -28.6, 0), V(0, 0, 1), 1.8), False)
sketch4.addGeometry(Part.Circle(V(-40.4, -12.4, 0), V(0, 0, 1), 1.8), False)
sketch4.addConstraint(Sketcher.Constraint("Tangent", 1, 2, 2, 2))
sketch4.addConstraint(Sketcher.Constraint("Coincident", 2, 1, 3, 1))
sketch4.addConstraint(Sketcher.Constraint("Coincident", 3, 2, 4, 2))
sketch4.addConstraint(Sketcher.Constraint("Tangent", 4, 1, 1, 1))
sketch4.addConstraint(Sketcher.Constraint("Equal", 0, 5))
sketch4.addConstraint(Sketcher.Constraint("Equal", 5, 6))
sketch4.addConstraint(Sketcher.Constraint("Radius", 4, Q("0.375 in")))
sketch4.addConstraint(Sketcher.Constraint("Diameter", 0, Q("3.5 mm")))
sketch4.addConstraint(Sketcher.Constraint("Radius", 2, Q("17.5 mm")))
sketch4.addConstraint(Sketcher.Constraint("DistanceY", 4, 3, 2, 1, Q("1.1724998 in")))
sketch4.addConstraint(Sketcher.Constraint("DistanceX", 6, 3, 0, 3, Q("16.1573 mm")))
sketch4.addConstraint(Sketcher.Constraint("DistanceY", 5, 3, 6, 3, Q("16.1573 mm")))
sketch4.addConstraint(Sketcher.Constraint("Distance", 1, Q("10.79526 mm")))
sketch4.addConstraint(Sketcher.Constraint("DistanceX", 0, 3, -1, 1, Q("24.26389 mm")))
sketch4.addConstraint(Sketcher.Constraint("DistanceY", 0, 3, -1, 1, Q("19.57173 mm")))
sketch4.addConstraint(Sketcher.Constraint("DistanceX", 4, 3, -1, 1, Q("38.858158 mm")))
sketch4.addConstraint(Sketcher.Constraint("DistanceX", 2, 1, -1, 1, Q("30.64574 mm")))
sketch4.addConstraint(Sketcher.Constraint("DistanceX", 3, 2, -1, 1, Q("45.859162 mm")))
sketch4.addConstraint(Sketcher.Constraint("DistanceY", 4, 3, 5, 3, Q("8.605448 mm")))
sketch4.addConstraint(Sketcher.Constraint("DistanceX", 1, 2, 5, 3, Q("4.341091 mm")))
sketch4.addConstraint(Sketcher.Constraint("DistanceY", 2, 3, -1, 1, Q("24.064237 mm")))
pad3 = body.newObject("PartDesign::Pad", "Pad002")
pad3.Profile = sketch4
pad3.Length = Q("0.25 in")

# Sketch on XY plane
sketch5 = body.newObject("Sketcher::SketchObject", "Sketch004")
sketch5.AttachmentSupport = (doc.getObject("XY_Plane"), [""])
sketch5.MapMode = "FlatFace"
sketch5.addGeometry(Part.Circle(V(-24.3, -19.6, 0), V(0, 0, 1), 1.8), False)
sketch5.addConstraint(Sketcher.Constraint("Diameter", 0, Q("3.5 mm")))
sketch5.addConstraint(Sketcher.Constraint("DistanceX", 0, 3, -1, 1, Q("24.26389 mm")))
sketch5.addConstraint(Sketcher.Constraint("DistanceY", 0, 3, -1, 1, Q("19.57173 mm")))
pocket2 = body.newObject("PartDesign::Pocket", "Pocket001")
pocket2.Profile = sketch5
pocket2.Type = "ThroughAll"
pocket2.Reversed = True

# Sketch on XY plane
sketch6 = body.newObject("Sketcher::SketchObject", "Sketch005")
sketch6.AttachmentSupport = (doc.getObject("XY_Plane"), [""])
sketch6.MapMode = "FlatFace"
sketch6.addGeometry(Part.LineSegment(V(159, 94, 0), V(146, 87, 0)), False)
sketch6.addGeometry(Part.ArcOfCircle(Part.Circle(V(158, 91, 0), V(0, 0, 1), 13), math.radians(-52), math.radians(194)), False)
sketch6.addGeometry(Part.ArcOfCircle(Part.Circle(V(0, 0, 0), V(0, 0, 1), 185), math.radians(25.83), math.radians(30.7)), False)
sketch6.addConstraint(Sketcher.Constraint("Coincident", 0, 2, 1, 2))
sketch6.addConstraint(Sketcher.Constraint("Coincident", 1, 1, 2, 1))
sketch6.addConstraint(Sketcher.Constraint("Coincident", 2, 2, 0, 1))
sketch6.addConstraint(Sketcher.Constraint("Coincident", 2, 3, -1, 1))
sketch6.addConstraint(Sketcher.Constraint("Radius", 1, Q("0.5 in")))
sketch6.addConstraint(Sketcher.Constraint("Radius", 2, Q("184.689967 mm")))
sketch6.addConstraint(Sketcher.Constraint("DistanceY", -1, 1, 0, 2, Q("87.3654 mm")))
sketch6.addConstraint(Sketcher.Constraint("DistanceY", -1, 1, 1, 1, Q("80.460802 mm")))
sketch6.addConstraint(Sketcher.Constraint("DistanceX", -1, 1, 0, 2, Q("146.170088 mm")))
sketch6.addConstraint(Sketcher.Constraint("DistanceY", -1, 1, 2, 2, Q("94.291959 mm")))
pad4 = body.newObject("PartDesign::Pad", "Pad003")
pad4.Profile = sketch6
pad4.Length = Q("0.25 in")

# Sketch on XY plane
sketch7 = body.newObject("Sketcher::SketchObject", "Sketch006")
sketch7.AttachmentSupport = (doc.getObject("XY_Plane"), [""])
sketch7.MapMode = "FlatFace"
sketch7.addGeometry(Part.Circle(V(158, 91, 0), V(0, 0, 1), 6), False)
sketch7.addConstraint(Sketcher.Constraint("Diameter", 0, Q("0.472 in")))
sketch7.addConstraint(Sketcher.Constraint("DistanceX", -1, 1, 0, 3, Q("158.474943 mm")))
sketch7.addConstraint(Sketcher.Constraint("DistanceY", -1, 1, 0, 3, Q("90.508734 mm")))
pocket3 = body.newObject("PartDesign::Pocket", "Pocket002")
pocket3.Profile = sketch7
pocket3.Type = "ThroughAll"
pocket3.Reversed = True

doc.recompute()
